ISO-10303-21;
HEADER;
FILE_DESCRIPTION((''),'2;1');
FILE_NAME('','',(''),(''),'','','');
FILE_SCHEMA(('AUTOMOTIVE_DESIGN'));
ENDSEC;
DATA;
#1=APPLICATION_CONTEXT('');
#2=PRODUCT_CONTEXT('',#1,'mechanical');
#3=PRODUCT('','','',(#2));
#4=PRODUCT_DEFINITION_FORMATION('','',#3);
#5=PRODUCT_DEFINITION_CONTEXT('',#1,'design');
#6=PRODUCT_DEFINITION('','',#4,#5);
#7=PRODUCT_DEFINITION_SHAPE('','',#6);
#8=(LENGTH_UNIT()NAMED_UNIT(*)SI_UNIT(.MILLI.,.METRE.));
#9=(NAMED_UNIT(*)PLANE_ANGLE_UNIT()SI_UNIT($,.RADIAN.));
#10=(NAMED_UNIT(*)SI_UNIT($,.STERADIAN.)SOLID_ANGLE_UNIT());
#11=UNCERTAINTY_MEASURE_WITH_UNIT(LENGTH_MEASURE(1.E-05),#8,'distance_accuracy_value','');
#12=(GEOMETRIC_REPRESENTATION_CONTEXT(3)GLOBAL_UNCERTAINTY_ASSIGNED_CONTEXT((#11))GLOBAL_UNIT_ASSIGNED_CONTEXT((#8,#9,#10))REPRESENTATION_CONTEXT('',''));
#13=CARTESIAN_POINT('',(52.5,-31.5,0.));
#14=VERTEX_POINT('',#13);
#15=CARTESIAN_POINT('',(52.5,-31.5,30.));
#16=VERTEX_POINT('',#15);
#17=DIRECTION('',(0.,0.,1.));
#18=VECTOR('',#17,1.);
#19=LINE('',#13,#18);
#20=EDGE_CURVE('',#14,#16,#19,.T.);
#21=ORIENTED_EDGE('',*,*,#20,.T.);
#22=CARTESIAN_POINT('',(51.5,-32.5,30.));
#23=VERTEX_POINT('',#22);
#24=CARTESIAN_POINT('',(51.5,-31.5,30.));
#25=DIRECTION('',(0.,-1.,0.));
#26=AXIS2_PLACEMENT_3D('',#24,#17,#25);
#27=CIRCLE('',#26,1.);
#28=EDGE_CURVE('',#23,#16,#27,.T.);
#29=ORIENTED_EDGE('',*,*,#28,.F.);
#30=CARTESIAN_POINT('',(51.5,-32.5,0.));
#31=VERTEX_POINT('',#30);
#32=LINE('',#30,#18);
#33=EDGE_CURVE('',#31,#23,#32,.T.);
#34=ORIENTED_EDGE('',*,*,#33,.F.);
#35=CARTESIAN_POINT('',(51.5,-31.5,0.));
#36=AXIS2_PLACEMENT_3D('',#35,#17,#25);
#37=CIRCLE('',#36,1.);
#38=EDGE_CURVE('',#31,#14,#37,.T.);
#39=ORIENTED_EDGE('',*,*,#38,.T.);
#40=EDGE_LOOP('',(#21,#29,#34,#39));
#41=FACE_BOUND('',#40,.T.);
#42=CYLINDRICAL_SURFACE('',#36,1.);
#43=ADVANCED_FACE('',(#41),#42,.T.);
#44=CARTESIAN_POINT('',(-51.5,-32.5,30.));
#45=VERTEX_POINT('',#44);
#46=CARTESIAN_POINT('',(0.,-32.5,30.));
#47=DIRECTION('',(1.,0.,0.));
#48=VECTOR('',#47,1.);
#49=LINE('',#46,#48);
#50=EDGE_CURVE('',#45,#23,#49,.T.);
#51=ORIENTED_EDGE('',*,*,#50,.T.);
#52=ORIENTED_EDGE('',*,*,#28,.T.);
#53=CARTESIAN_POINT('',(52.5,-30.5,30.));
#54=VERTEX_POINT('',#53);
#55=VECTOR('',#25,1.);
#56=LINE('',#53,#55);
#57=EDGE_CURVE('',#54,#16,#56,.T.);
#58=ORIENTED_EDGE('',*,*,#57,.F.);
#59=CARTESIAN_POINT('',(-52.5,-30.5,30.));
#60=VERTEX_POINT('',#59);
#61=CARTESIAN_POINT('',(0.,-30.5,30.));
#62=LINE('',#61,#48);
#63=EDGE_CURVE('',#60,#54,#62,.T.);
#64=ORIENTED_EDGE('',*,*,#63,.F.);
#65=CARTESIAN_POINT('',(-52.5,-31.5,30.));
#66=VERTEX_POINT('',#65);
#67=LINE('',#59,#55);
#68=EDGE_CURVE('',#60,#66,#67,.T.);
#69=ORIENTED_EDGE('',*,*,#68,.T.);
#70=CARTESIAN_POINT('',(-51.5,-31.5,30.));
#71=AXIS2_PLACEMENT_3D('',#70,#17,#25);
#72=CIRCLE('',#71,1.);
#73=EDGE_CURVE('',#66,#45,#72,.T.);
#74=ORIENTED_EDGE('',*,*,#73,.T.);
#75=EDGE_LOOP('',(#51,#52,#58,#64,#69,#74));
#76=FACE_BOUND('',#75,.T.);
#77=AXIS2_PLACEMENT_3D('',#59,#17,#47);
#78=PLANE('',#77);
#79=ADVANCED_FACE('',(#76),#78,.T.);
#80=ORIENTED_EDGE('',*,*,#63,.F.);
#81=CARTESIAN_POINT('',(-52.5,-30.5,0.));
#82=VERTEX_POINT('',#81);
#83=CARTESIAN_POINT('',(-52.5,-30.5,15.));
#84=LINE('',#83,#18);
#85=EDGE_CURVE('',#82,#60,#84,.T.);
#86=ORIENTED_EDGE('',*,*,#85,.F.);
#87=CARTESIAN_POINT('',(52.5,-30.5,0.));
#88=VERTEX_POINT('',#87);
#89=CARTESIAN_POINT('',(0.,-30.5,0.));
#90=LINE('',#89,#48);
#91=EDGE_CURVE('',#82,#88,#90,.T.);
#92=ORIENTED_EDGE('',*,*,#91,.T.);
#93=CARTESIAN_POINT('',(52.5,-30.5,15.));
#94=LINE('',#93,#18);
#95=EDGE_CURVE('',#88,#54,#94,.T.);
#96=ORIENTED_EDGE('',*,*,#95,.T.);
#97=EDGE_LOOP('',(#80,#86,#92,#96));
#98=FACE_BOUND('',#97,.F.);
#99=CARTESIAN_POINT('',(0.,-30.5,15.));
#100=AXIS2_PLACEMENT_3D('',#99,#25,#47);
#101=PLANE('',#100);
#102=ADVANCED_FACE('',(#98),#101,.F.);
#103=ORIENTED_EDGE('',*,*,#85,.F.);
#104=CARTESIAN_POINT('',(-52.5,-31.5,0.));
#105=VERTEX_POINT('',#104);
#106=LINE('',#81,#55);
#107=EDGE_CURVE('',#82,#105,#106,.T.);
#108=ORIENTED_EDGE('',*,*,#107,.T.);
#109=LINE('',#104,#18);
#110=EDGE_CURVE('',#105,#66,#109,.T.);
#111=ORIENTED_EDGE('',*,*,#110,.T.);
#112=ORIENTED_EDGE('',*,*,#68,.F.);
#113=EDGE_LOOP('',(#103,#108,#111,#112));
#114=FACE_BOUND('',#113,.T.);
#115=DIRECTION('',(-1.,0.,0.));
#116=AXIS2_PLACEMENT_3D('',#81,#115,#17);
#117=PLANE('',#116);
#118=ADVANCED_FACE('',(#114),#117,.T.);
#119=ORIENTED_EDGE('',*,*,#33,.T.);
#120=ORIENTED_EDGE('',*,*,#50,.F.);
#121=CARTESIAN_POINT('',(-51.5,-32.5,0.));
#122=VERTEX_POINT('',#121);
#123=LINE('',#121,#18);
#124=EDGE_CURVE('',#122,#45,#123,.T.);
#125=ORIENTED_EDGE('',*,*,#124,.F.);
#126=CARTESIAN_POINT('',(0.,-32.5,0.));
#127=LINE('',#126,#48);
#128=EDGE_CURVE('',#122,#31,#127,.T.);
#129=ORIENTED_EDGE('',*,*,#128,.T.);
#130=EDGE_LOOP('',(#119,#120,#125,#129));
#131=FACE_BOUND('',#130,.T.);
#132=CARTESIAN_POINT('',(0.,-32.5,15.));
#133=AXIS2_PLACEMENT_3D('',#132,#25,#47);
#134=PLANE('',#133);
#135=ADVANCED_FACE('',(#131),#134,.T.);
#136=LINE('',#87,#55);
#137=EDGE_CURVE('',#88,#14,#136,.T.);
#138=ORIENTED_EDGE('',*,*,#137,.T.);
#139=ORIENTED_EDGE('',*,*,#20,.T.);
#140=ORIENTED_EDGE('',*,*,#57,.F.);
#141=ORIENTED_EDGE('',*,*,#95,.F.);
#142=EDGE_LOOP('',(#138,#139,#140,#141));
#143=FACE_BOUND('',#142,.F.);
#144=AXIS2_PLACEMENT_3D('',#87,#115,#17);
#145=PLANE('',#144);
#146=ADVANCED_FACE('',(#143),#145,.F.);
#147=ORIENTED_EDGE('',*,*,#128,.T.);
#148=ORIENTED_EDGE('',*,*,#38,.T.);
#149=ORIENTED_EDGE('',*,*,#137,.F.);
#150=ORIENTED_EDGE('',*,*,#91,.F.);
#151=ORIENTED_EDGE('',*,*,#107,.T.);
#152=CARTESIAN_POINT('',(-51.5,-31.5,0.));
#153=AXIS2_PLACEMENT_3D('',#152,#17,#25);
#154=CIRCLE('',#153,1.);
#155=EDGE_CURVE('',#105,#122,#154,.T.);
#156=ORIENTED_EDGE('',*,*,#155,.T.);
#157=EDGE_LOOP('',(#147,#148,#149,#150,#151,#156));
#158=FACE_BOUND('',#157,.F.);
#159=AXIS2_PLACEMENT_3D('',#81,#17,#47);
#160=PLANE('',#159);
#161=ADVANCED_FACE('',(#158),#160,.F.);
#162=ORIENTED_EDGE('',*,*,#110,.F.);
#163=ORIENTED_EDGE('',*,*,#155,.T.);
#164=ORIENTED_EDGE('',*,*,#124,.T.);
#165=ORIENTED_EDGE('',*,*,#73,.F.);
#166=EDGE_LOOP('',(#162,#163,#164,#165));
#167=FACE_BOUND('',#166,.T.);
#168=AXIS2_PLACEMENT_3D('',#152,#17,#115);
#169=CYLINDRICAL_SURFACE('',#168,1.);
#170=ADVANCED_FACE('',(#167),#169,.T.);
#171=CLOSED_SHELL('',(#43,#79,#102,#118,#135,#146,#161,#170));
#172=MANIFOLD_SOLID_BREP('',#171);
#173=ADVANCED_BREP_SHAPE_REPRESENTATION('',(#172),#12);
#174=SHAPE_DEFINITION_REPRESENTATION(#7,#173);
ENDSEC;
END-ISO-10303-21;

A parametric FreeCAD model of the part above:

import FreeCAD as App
import Part
import Sketcher
from FreeCAD import Vector


def edges_at(feature, points):
    """Names of the edges that pass closest to the given points."""
    edges = feature.Shape.Edges
    near = lambda p: min(range(len(edges)), key=lambda i: edges[i].distToShape(Part.Vertex(*p))[0])
    return sorted({f"Edge{near(p) + 1}" for p in points})

doc = App.newDocument("Part")
body = doc.addObject("PartDesign::Body", "Body")

sketch1 = body.newObject("Sketcher::SketchObject", "Sketch")
sketch1.AttachmentSupport = (doc.getObject("XZ_Plane"), [""])
sketch1.MapMode = "FlatFace"
sketch1.addGeometry(Part.LineSegment(Vector(-52.5, 30, 0), Vector(-52.5, 0, 0)), False)
sketch1.addGeometry(Part.LineSegment(Vector(-52.5, 0, 0), Vector(52.5, 0, 0)), False)
sketch1.addGeometry(Part.LineSegment(Vector(52.5, 0, 0), Vector(52.5, 30, 0)), False)
sketch1.addGeometry(Part.LineSegment(Vector(52.5, 30, 0), Vector(-52.5, 30, 0)), False)
sketch1.addConstraint(Sketcher.Constraint("Coincident", 0, 2, 1, 1))
sketch1.addConstraint(Sketcher.Constraint("Coincident", 1, 2, 2, 1))
sketch1.addConstraint(Sketcher.Constraint("Coincident", 2, 2, 3, 1))
sketch1.addConstraint(Sketcher.Constraint("Coincident", 3, 2, 0, 1))
sketch1.addConstraint(Sketcher.Constraint("Vertical", 0))
sketch1.addConstraint(Sketcher.Constraint("Horizontal", 1))
sketch1.addConstraint(Sketcher.Constraint("Vertical", 2))
sketch1.addConstraint(Sketcher.Constraint("Horizontal", 3))
sketch1.addConstraint(Sketcher.Constraint("Symmetric", 0, 2, 1, 2, -1, 1))
sketch1.addConstraint(Sketcher.Constraint("DistanceX", 1, 1, 1, 2, 105.0))
sketch1.addConstraint(Sketcher.Constraint("DistanceY", 0, 2, 0, 1, 30.0))
pad1 = body.newObject("PartDesign::Pad", "Pad")
pad1.Profile = sketch1
pad1.Length = 2
doc.recompute()

fillet = body.newObject("PartDesign::Fillet", "Fillet")
fillet.Base = (pad1, edges_at(pad1, [(-52.5, -2, 15)]))
fillet.Radius = 1
doc.recompute()

fillet2 = body.newObject("PartDesign::Fillet", "Fillet001")
fillet2.Base = (fillet, edges_at(fillet, [(52.5, -2, 15)]))
fillet2.Radius = 1
body2 = doc.addObject("PartDesign::Body", "Body001")
doc.recompute()

body.Placement = App.Placement(Vector(0, -30.5, 0), App.Rotation(Vector(0, 0, 1), 0))
boolean = body2.newObject("PartDesign::Boolean", "Boolean")
boolean.Type = "Fuse"
boolean.addObjects([body])

doc.recompute()
